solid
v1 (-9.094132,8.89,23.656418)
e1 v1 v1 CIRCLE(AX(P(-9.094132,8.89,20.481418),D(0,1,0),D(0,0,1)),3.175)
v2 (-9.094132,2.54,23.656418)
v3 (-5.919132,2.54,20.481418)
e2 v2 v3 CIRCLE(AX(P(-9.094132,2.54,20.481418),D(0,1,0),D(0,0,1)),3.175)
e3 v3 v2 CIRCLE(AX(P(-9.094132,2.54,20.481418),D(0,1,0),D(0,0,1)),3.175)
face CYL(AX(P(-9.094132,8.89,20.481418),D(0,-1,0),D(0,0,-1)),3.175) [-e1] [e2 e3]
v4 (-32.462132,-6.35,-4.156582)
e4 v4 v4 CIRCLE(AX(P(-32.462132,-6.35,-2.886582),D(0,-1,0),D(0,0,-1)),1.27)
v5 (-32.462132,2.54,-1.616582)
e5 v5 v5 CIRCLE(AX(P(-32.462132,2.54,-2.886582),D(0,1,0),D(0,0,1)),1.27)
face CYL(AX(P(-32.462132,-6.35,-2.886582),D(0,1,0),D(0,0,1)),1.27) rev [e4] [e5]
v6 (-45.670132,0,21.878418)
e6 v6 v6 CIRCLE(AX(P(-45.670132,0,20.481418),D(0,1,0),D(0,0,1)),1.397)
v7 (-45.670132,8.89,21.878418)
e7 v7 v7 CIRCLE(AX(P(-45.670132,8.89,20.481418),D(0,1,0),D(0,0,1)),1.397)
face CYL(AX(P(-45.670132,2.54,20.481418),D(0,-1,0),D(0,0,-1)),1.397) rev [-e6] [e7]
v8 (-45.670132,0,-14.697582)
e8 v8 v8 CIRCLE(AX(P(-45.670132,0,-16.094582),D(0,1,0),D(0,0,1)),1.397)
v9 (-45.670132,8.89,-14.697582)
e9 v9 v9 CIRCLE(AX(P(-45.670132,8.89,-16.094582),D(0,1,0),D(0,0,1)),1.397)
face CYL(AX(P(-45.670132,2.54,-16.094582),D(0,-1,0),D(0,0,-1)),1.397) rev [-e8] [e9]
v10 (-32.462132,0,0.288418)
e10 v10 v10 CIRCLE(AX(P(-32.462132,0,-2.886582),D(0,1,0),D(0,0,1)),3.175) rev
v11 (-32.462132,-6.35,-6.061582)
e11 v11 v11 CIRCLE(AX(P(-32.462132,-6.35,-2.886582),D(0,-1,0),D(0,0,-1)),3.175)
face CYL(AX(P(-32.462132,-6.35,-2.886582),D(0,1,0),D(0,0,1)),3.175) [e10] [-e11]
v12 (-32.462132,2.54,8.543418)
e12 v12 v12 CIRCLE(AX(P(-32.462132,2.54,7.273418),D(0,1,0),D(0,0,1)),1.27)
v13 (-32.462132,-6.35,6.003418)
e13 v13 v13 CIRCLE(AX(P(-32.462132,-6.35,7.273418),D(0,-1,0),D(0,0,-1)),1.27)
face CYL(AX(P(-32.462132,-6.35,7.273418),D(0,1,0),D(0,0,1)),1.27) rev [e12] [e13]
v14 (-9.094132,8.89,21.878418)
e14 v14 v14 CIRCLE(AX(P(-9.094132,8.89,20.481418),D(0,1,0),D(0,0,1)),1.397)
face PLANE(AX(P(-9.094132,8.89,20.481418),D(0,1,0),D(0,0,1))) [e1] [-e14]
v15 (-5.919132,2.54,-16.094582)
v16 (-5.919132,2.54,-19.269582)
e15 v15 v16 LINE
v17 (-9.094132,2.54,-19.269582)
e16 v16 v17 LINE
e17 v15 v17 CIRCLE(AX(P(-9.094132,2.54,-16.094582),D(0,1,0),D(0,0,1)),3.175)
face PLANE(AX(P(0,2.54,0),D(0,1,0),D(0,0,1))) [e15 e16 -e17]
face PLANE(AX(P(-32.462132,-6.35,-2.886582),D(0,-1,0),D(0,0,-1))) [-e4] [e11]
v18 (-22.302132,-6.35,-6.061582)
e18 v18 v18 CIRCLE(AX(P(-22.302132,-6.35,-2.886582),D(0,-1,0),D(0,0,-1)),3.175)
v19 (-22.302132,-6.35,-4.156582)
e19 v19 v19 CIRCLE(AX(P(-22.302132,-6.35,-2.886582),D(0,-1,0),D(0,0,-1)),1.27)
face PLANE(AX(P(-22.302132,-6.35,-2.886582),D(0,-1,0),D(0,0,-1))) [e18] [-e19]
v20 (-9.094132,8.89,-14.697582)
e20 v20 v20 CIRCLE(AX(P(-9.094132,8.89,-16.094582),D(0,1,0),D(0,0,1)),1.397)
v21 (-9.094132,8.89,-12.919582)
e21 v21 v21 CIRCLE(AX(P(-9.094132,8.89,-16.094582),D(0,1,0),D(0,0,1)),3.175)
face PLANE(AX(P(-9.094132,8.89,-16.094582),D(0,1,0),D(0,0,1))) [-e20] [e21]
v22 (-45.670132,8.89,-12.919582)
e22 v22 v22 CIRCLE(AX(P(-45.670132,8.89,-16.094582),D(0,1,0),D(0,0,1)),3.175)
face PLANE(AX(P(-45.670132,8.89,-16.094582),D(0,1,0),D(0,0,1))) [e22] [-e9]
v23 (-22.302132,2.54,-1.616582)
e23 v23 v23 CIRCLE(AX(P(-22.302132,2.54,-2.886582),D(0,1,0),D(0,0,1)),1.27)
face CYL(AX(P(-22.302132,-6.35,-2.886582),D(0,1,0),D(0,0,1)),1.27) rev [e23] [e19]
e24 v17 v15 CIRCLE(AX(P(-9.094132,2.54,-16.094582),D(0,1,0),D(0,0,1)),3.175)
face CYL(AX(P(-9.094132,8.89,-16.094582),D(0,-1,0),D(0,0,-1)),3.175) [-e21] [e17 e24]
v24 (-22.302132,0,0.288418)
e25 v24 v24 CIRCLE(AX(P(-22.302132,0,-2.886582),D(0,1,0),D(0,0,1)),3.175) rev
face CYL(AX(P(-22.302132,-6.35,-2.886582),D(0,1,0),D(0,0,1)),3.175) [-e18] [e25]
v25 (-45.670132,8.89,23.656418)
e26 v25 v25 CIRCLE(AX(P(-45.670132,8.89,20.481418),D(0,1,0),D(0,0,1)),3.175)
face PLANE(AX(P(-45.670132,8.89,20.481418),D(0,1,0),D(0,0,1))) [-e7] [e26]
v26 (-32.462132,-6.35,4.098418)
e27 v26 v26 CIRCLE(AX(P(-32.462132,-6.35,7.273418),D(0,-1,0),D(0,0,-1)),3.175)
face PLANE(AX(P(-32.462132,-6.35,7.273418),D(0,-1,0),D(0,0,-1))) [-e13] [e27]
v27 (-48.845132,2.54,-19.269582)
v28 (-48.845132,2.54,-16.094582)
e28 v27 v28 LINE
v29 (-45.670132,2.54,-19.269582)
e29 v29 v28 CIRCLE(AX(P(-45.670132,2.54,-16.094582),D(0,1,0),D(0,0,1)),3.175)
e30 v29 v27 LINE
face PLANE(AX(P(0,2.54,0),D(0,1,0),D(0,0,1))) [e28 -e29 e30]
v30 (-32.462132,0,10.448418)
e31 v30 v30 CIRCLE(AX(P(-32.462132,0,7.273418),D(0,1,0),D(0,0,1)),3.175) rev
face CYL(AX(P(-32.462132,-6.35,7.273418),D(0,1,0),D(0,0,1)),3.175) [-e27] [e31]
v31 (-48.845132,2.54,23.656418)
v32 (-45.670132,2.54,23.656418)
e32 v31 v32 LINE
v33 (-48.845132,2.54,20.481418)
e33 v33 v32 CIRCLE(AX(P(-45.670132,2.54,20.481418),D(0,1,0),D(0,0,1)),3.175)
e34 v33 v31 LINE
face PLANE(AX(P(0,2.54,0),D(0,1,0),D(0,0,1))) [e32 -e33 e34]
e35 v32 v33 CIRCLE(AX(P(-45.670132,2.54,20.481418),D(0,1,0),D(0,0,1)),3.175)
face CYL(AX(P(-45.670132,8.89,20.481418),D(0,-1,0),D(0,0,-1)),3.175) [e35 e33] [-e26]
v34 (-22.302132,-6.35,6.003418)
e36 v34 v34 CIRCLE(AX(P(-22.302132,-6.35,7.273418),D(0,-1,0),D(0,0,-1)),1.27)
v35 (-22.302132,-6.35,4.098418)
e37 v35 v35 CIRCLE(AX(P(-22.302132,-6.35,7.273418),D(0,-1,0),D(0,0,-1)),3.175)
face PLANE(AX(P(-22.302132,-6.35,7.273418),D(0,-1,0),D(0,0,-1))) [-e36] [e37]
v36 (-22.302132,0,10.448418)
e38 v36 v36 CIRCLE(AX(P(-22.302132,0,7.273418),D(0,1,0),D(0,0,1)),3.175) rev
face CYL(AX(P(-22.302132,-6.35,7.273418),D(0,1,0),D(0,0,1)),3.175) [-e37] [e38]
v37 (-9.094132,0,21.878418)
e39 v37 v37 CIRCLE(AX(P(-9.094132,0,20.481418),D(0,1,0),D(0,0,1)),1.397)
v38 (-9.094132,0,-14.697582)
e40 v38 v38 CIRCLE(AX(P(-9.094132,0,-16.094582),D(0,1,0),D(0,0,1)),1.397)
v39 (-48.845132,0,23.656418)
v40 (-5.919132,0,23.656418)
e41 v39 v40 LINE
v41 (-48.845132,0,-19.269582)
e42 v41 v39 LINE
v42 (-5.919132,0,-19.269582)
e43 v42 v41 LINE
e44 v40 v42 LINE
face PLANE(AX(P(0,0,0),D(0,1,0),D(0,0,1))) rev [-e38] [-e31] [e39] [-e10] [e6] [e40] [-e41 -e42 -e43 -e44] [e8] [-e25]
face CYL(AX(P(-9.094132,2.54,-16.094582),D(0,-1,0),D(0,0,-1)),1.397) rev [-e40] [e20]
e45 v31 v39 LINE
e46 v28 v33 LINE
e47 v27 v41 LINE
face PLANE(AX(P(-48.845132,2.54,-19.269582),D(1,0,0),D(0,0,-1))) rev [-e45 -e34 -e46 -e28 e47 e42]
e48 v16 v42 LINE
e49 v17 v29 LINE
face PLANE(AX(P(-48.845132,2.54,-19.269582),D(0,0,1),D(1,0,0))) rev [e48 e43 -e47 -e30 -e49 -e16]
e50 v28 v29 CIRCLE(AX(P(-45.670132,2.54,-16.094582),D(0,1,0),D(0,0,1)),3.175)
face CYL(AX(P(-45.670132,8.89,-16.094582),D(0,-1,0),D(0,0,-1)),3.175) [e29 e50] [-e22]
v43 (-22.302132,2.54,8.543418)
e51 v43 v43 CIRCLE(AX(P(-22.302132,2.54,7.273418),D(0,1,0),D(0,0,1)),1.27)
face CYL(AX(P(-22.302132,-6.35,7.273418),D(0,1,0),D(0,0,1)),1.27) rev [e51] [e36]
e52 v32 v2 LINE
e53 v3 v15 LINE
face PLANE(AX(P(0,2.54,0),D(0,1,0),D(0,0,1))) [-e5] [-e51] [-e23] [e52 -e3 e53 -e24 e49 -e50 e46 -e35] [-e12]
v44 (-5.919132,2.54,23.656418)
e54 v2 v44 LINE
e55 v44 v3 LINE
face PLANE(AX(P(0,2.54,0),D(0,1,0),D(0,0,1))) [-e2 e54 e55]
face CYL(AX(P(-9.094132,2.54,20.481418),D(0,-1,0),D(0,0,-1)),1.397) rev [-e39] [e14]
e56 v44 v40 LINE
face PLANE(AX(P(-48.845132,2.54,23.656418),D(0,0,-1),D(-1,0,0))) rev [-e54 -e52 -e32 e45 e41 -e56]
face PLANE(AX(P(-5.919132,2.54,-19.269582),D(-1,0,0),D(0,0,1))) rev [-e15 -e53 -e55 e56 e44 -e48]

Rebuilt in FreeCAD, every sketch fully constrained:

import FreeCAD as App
import Part
import Sketcher

V = App.Vector
Q = App.Units.Quantity


def add_polygon(sketch, points):
    """Adds a closed chain of lines whose ends are joined by coincident constraints."""
    first, n = sketch.GeometryCount, len(points)
    for a, b in zip(points, points[1:] + points[:1]):
        sketch.addGeometry(Part.LineSegment(App.Vector(*a, 0), App.Vector(*b, 0)), False)
    for i in range(n):
        sketch.addConstraint(Sketcher.Constraint("Coincident", first + i, 2, first + (i + 1) % n, 1))

doc = App.newDocument("Part")
body = doc.addObject("PartDesign::Body", "Body")

# Sketch on XZ plane
sketch1 = body.newObject("Sketcher::SketchObject", "Sketch")
sketch1.AttachmentSupport = (doc.getObject("XZ_Plane"), [""])
sketch1.MapMode = "FlatFace"
add_polygon(sketch1, [(-48.8, -19.3), (-48.8, 23.7), (-5.9, 23.7), (-5.9, -19.3)])  # lines 0-3
sketch1.addGeometry(Part.Circle(V(-45.7, 20.5, 0), V(0, 0, 1), 1.4), False)  # 4
sketch1.addGeometry(Part.Circle(V(-9.1, 20.5, 0), V(0, 0, 1), 1.4), False)  # 5
sketch1.addGeometry(Part.Circle(V(-45.7, -16.1, 0), V(0, 0, 1), 1.4), False)  # 6
sketch1.addGeometry(Part.Circle(V(-9.1, -16.1, 0), V(0, 0, 1), 1.4), False)  # 7
sketch1.addConstraint(Sketcher.Constraint("Vertical", 0))
sketch1.addConstraint(Sketcher.Constraint("Horizontal", 1))
sketch1.addConstraint(Sketcher.Constraint("Vertical", 2))
sketch1.addConstraint(Sketcher.Constraint("Horizontal", 3))
sketch1.addConstraint(Sketcher.Constraint("Equal", 4, 5))
sketch1.addConstraint(Sketcher.Constraint("Equal", 5, 6))
sketch1.addConstraint(Sketcher.Constraint("Equal", 6, 7))
sketch1.addConstraint(Sketcher.Constraint("Horizontal", 4, 3, 5, 3))
sketch1.addConstraint(Sketcher.Constraint("Horizontal", 6, 3, 7, 3))
sketch1.addConstraint(Sketcher.Constraint("Vertical", 4, 3, 6, 3))
sketch1.addConstraint(Sketcher.Constraint("Vertical", 5, 3, 7, 3))
sketch1.addConstraint(Sketcher.Constraint("Equal", 3, 0))
sketch1.addConstraint(Sketcher.Constraint("Diameter", 4, Q("0.11 in")))
sketch1.addConstraint(Sketcher.Constraint("DistanceX", 1, 1, 1, 2, Q("1.69 in")))
sketch1.addConstraint(Sketcher.Constraint("DistanceX", 4, 3, 5, 3, Q("1.44 in")))
sketch1.addConstraint(Sketcher.Constraint("DistanceY", 6, 3, 4, 3, Q("1.44 in")))
sketch1.addConstraint(Sketcher.Constraint("DistanceX", 0, 2, 4, 3, Q("0.125 in")))
sketch1.addConstraint(Sketcher.Constraint("DistanceY", 4, 3, 0, 2, Q("0.125 in")))
sketch1.addConstraint(Sketcher.Constraint("DistanceX", 4, 3, -1, 1, Q("45.670132 mm")))
sketch1.addConstraint(Sketcher.Constraint("DistanceY", -1, 1, 4, 3, Q("20.481418 mm")))
pad1 = body.newObject("PartDesign::Pad", "Pad")
pad1.Profile = sketch1
pad1.Length = Q("0.1 in")
pad1.Reversed = True

# Sketch on XZ plane
sketch2 = body.newObject("Sketcher::SketchObject", "Sketch001")
sketch2.AttachmentSupport = (doc.getObject("XZ_Plane"), [""])
sketch2.MapMode = "FlatFace"
sketch2.AttachmentOffset = App.Placement(V(0, 0, -0.1 * 25.4), App.Rotation())
sketch2.addGeometry(Part.Circle(V(-45.7, -16.1, 0), V(0, 0, 1), 3.2), False)
sketch2.addGeometry(Part.Circle(V(-45.7, -16.1, 0), V(0, 0, 1), 1.4), False)
sketch2.addGeometry(Part.Circle(V(-9.1, -16.1, 0), V(0, 0, 1), 3.2), False)
sketch2.addGeometry(Part.Circle(V(-9.1, -16.1, 0), V(0, 0, 1), 1.4), False)
sketch2.addGeometry(Part.Circle(V(-9.1, 20.5, 0), V(0, 0, 1), 3.2), False)
sketch2.addGeometry(Part.Circle(V(-9.1, 20.5, 0), V(0, 0, 1), 1.4), False)
sketch2.addGeometry(Part.Circle(V(-45.7, 20.5, 0), V(0, 0, 1), 3.2), False)
sketch2.addGeometry(Part.Circle(V(-45.7, 20.5, 0), V(0, 0, 1), 1.4), False)
sketch2.addConstraint(Sketcher.Constraint("Coincident", 1, 3, 0, 3))
sketch2.addConstraint(Sketcher.Constraint("Coincident", 3, 3, 2, 3))
sketch2.addConstraint(Sketcher.Constraint("Coincident", 5, 3, 4, 3))
sketch2.addConstraint(Sketcher.Constraint("Coincident", 7, 3, 6, 3))
sketch2.addConstraint(Sketcher.Constraint("Equal", 0, 2))
sketch2.addConstraint(Sketcher.Constraint("Equal", 1, 3))
sketch2.addConstraint(Sketcher.Constraint("Equal", 2, 4))
sketch2.addConstraint(Sketcher.Constraint("Equal", 3, 5))
sketch2.addConstraint(Sketcher.Constraint("Equal", 4, 6))
sketch2.addConstraint(Sketcher.Constraint("Equal", 5, 7))
sketch2.addConstraint(Sketcher.Constraint("Horizontal", 1, 3, 2, 3))
sketch2.addConstraint(Sketcher.Constraint("Horizontal", 5, 3, 6, 3))
sketch2.addConstraint(Sketcher.Constraint("Vertical", 3, 3, 4, 3))
sketch2.addConstraint(Sketcher.Constraint("Vertical", 1, 3, 6, 3))
sketch2.addConstraint(Sketcher.Constraint("Diameter", 0, Q("0.25 in")))
sketch2.addConstraint(Sketcher.Constraint("Diameter", 1, Q("0.11 in")))
sketch2.addConstraint(Sketcher.Constraint("DistanceX", 0, 3, 2, 3, Q("1.44 in")))
sketch2.addConstraint(Sketcher.Constraint("DistanceY", 2, 3, 4, 3, Q("1.44 in")))
sketch2.addConstraint(Sketcher.Constraint("DistanceX", 0, 3, -1, 1, Q("45.670132 mm")))
sketch2.addConstraint(Sketcher.Constraint("DistanceY", 0, 3, -1, 1, Q("16.094582 mm")))
pad2 = body.newObject("PartDesign::Pad", "Pad001")
pad2.Profile = sketch2
pad2.Length = Q("0.25 in")
pad2.Reversed = True

# Sketch on XZ plane
sketch3 = body.newObject("Sketcher::SketchObject", "Sketch002")
sketch3.AttachmentSupport = (doc.getObject("XZ_Plane"), [""])
sketch3.MapMode = "FlatFace"
sketch3.addGeometry(Part.Circle(V(-32.5, 7.3, 0), V(0, 0, 1), 3.2), False)
sketch3.addGeometry(Part.Circle(V(-32.5, 7.3, 0), V(0, 0, 1), 1.3), False)
sketch3.addGeometry(Part.Circle(V(-22.3, 7.3, 0), V(0, 0, 1), 3.2), False)
sketch3.addGeometry(Part.Circle(V(-22.3, 7.3, 0), V(0, 0, 1), 1.3), False)
sketch3.addGeometry(Part.Circle(V(-22.3, -2.9, 0), V(0, 0, 1), 3.2), False)
sketch3.addGeometry(Part.Circle(V(-22.3, -2.9, 0), V(0, 0, 1), 1.3), False)
sketch3.addGeometry(Part.Circle(V(-32.5, -2.9, 0), V(0, 0, 1), 3.2), False)
sketch3.addGeometry(Part.Circle(V(-32.5, -2.9, 0), V(0, 0, 1), 1.3), False)
sketch3.addConstraint(Sketcher.Constraint("Coincident", 1, 3, 0, 3))
sketch3.addConstraint(Sketcher.Constraint("Coincident", 3, 3, 2, 3))
sketch3.addConstraint(Sketcher.Constraint("Coincident", 5, 3, 4, 3))
sketch3.addConstraint(Sketcher.Constraint("Coincident", 7, 3, 6, 3))
sketch3.addConstraint(Sketcher.Constraint("Equal", 0, 2))
sketch3.addConstraint(Sketcher.Constraint("Equal", 1, 3))
sketch3.addConstraint(Sketcher.Constraint("Equal", 2, 4))
sketch3.addConstraint(Sketcher.Constraint("Equal", 3, 5))
sketch3.addConstraint(Sketcher.Constraint("Equal", 4, 6))
sketch3.addConstraint(Sketcher.Constraint("Equal", 5, 7))
sketch3.addConstraint(Sketcher.Constraint("Horizontal", 1, 3, 2, 3))
sketch3.addConstraint(Sketcher.Constraint("Horizontal", 5, 3, 6, 3))
sketch3.addConstraint(Sketcher.Constraint("Vertical", 3, 3, 4, 3))
sketch3.addConstraint(Sketcher.Constraint("Vertical", 1, 3, 6, 3))
sketch3.addConstraint(Sketcher.Constraint("Diameter", 1, Q("0.1 in")))
sketch3.addConstraint(Sketcher.Constraint("Diameter", 0, Q("0.25 in")))
sketch3.addConstraint(Sketcher.Constraint("DistanceX", 0, 3, 2, 3, Q("0.4 in")))
sketch3.addConstraint(Sketcher.Constraint("DistanceY", 4, 3, 2, 3, Q("0.4 in")))
sketch3.addConstraint(Sketcher.Constraint("DistanceX", 0, 3, -1, 1, Q("32.462132 mm")))
sketch3.addConstraint(Sketcher.Constraint("DistanceY", -1, 1, 0, 3, Q("7.273418 mm")))
pad3 = body.newObject("PartDesign::Pad", "Pad002")
pad3.Profile = sketch3
pad3.Length = Q("0.25 in")

# Sketch on XZ plane
sketch4 = body.newObject("Sketcher::SketchObject", "Sketch003")
sketch4.AttachmentSupport = (doc.getObject("XZ_Plane"), [""])
sketch4.MapMode = "FlatFace"
sketch4.addGeometry(Part.Circle(V(-32.5, -2.9, 0), V(0, 0, 1), 1.3), False)
sketch4.addGeometry(Part.Circle(V(-32.5, 7.3, 0), V(0, 0, 1), 1.3), False)
sketch4.addGeometry(Part.Circle(V(-22.3, -2.9, 0), V(0, 0, 1), 1.3), False)
sketch4.addGeometry(Part.Circle(V(-22.3, 7.3, 0), V(0, 0, 1), 1.3), False)
sketch4.addConstraint(Sketcher.Constraint("Equal", 0, 1))
sketch4.addConstraint(Sketcher.Constraint("Equal", 1, 2))
sketch4.addConstraint(Sketcher.Constraint("Equal", 2, 3))
sketch4.addConstraint(Sketcher.Constraint("Horizontal", 0, 3, 2, 3))
sketch4.addConstraint(Sketcher.Constraint("Horizontal", 1, 3, 3, 3))
sketch4.addConstraint(Sketcher.Constraint("Vertical", 0, 3, 1, 3))
sketch4.addConstraint(Sketcher.Constraint("Vertical", 2, 3, 3, 3))
sketch4.addConstraint(Sketcher.Constraint("Diameter", 0, Q("0.1 in")))
sketch4.addConstraint(Sketcher.Constraint("DistanceY", 0, 3, 1, 3, Q("0.4 in")))
sketch4.addConstraint(Sketcher.Constraint("DistanceX", 0, 3, 2, 3, Q("0.4 in")))
sketch4.addConstraint(Sketcher.Constraint("DistanceX", 0, 3, -1, 1, Q("32.462132 mm")))
sketch4.addConstraint(Sketcher.Constraint("DistanceY", 0, 3, -1, 1, Q("2.886582 mm")))
pocket1 = body.newObject("PartDesign::Pocket", "Pocket")
pocket1.Profile = sketch4
pocket1.Type = "ThroughAll"

doc.recompute()
